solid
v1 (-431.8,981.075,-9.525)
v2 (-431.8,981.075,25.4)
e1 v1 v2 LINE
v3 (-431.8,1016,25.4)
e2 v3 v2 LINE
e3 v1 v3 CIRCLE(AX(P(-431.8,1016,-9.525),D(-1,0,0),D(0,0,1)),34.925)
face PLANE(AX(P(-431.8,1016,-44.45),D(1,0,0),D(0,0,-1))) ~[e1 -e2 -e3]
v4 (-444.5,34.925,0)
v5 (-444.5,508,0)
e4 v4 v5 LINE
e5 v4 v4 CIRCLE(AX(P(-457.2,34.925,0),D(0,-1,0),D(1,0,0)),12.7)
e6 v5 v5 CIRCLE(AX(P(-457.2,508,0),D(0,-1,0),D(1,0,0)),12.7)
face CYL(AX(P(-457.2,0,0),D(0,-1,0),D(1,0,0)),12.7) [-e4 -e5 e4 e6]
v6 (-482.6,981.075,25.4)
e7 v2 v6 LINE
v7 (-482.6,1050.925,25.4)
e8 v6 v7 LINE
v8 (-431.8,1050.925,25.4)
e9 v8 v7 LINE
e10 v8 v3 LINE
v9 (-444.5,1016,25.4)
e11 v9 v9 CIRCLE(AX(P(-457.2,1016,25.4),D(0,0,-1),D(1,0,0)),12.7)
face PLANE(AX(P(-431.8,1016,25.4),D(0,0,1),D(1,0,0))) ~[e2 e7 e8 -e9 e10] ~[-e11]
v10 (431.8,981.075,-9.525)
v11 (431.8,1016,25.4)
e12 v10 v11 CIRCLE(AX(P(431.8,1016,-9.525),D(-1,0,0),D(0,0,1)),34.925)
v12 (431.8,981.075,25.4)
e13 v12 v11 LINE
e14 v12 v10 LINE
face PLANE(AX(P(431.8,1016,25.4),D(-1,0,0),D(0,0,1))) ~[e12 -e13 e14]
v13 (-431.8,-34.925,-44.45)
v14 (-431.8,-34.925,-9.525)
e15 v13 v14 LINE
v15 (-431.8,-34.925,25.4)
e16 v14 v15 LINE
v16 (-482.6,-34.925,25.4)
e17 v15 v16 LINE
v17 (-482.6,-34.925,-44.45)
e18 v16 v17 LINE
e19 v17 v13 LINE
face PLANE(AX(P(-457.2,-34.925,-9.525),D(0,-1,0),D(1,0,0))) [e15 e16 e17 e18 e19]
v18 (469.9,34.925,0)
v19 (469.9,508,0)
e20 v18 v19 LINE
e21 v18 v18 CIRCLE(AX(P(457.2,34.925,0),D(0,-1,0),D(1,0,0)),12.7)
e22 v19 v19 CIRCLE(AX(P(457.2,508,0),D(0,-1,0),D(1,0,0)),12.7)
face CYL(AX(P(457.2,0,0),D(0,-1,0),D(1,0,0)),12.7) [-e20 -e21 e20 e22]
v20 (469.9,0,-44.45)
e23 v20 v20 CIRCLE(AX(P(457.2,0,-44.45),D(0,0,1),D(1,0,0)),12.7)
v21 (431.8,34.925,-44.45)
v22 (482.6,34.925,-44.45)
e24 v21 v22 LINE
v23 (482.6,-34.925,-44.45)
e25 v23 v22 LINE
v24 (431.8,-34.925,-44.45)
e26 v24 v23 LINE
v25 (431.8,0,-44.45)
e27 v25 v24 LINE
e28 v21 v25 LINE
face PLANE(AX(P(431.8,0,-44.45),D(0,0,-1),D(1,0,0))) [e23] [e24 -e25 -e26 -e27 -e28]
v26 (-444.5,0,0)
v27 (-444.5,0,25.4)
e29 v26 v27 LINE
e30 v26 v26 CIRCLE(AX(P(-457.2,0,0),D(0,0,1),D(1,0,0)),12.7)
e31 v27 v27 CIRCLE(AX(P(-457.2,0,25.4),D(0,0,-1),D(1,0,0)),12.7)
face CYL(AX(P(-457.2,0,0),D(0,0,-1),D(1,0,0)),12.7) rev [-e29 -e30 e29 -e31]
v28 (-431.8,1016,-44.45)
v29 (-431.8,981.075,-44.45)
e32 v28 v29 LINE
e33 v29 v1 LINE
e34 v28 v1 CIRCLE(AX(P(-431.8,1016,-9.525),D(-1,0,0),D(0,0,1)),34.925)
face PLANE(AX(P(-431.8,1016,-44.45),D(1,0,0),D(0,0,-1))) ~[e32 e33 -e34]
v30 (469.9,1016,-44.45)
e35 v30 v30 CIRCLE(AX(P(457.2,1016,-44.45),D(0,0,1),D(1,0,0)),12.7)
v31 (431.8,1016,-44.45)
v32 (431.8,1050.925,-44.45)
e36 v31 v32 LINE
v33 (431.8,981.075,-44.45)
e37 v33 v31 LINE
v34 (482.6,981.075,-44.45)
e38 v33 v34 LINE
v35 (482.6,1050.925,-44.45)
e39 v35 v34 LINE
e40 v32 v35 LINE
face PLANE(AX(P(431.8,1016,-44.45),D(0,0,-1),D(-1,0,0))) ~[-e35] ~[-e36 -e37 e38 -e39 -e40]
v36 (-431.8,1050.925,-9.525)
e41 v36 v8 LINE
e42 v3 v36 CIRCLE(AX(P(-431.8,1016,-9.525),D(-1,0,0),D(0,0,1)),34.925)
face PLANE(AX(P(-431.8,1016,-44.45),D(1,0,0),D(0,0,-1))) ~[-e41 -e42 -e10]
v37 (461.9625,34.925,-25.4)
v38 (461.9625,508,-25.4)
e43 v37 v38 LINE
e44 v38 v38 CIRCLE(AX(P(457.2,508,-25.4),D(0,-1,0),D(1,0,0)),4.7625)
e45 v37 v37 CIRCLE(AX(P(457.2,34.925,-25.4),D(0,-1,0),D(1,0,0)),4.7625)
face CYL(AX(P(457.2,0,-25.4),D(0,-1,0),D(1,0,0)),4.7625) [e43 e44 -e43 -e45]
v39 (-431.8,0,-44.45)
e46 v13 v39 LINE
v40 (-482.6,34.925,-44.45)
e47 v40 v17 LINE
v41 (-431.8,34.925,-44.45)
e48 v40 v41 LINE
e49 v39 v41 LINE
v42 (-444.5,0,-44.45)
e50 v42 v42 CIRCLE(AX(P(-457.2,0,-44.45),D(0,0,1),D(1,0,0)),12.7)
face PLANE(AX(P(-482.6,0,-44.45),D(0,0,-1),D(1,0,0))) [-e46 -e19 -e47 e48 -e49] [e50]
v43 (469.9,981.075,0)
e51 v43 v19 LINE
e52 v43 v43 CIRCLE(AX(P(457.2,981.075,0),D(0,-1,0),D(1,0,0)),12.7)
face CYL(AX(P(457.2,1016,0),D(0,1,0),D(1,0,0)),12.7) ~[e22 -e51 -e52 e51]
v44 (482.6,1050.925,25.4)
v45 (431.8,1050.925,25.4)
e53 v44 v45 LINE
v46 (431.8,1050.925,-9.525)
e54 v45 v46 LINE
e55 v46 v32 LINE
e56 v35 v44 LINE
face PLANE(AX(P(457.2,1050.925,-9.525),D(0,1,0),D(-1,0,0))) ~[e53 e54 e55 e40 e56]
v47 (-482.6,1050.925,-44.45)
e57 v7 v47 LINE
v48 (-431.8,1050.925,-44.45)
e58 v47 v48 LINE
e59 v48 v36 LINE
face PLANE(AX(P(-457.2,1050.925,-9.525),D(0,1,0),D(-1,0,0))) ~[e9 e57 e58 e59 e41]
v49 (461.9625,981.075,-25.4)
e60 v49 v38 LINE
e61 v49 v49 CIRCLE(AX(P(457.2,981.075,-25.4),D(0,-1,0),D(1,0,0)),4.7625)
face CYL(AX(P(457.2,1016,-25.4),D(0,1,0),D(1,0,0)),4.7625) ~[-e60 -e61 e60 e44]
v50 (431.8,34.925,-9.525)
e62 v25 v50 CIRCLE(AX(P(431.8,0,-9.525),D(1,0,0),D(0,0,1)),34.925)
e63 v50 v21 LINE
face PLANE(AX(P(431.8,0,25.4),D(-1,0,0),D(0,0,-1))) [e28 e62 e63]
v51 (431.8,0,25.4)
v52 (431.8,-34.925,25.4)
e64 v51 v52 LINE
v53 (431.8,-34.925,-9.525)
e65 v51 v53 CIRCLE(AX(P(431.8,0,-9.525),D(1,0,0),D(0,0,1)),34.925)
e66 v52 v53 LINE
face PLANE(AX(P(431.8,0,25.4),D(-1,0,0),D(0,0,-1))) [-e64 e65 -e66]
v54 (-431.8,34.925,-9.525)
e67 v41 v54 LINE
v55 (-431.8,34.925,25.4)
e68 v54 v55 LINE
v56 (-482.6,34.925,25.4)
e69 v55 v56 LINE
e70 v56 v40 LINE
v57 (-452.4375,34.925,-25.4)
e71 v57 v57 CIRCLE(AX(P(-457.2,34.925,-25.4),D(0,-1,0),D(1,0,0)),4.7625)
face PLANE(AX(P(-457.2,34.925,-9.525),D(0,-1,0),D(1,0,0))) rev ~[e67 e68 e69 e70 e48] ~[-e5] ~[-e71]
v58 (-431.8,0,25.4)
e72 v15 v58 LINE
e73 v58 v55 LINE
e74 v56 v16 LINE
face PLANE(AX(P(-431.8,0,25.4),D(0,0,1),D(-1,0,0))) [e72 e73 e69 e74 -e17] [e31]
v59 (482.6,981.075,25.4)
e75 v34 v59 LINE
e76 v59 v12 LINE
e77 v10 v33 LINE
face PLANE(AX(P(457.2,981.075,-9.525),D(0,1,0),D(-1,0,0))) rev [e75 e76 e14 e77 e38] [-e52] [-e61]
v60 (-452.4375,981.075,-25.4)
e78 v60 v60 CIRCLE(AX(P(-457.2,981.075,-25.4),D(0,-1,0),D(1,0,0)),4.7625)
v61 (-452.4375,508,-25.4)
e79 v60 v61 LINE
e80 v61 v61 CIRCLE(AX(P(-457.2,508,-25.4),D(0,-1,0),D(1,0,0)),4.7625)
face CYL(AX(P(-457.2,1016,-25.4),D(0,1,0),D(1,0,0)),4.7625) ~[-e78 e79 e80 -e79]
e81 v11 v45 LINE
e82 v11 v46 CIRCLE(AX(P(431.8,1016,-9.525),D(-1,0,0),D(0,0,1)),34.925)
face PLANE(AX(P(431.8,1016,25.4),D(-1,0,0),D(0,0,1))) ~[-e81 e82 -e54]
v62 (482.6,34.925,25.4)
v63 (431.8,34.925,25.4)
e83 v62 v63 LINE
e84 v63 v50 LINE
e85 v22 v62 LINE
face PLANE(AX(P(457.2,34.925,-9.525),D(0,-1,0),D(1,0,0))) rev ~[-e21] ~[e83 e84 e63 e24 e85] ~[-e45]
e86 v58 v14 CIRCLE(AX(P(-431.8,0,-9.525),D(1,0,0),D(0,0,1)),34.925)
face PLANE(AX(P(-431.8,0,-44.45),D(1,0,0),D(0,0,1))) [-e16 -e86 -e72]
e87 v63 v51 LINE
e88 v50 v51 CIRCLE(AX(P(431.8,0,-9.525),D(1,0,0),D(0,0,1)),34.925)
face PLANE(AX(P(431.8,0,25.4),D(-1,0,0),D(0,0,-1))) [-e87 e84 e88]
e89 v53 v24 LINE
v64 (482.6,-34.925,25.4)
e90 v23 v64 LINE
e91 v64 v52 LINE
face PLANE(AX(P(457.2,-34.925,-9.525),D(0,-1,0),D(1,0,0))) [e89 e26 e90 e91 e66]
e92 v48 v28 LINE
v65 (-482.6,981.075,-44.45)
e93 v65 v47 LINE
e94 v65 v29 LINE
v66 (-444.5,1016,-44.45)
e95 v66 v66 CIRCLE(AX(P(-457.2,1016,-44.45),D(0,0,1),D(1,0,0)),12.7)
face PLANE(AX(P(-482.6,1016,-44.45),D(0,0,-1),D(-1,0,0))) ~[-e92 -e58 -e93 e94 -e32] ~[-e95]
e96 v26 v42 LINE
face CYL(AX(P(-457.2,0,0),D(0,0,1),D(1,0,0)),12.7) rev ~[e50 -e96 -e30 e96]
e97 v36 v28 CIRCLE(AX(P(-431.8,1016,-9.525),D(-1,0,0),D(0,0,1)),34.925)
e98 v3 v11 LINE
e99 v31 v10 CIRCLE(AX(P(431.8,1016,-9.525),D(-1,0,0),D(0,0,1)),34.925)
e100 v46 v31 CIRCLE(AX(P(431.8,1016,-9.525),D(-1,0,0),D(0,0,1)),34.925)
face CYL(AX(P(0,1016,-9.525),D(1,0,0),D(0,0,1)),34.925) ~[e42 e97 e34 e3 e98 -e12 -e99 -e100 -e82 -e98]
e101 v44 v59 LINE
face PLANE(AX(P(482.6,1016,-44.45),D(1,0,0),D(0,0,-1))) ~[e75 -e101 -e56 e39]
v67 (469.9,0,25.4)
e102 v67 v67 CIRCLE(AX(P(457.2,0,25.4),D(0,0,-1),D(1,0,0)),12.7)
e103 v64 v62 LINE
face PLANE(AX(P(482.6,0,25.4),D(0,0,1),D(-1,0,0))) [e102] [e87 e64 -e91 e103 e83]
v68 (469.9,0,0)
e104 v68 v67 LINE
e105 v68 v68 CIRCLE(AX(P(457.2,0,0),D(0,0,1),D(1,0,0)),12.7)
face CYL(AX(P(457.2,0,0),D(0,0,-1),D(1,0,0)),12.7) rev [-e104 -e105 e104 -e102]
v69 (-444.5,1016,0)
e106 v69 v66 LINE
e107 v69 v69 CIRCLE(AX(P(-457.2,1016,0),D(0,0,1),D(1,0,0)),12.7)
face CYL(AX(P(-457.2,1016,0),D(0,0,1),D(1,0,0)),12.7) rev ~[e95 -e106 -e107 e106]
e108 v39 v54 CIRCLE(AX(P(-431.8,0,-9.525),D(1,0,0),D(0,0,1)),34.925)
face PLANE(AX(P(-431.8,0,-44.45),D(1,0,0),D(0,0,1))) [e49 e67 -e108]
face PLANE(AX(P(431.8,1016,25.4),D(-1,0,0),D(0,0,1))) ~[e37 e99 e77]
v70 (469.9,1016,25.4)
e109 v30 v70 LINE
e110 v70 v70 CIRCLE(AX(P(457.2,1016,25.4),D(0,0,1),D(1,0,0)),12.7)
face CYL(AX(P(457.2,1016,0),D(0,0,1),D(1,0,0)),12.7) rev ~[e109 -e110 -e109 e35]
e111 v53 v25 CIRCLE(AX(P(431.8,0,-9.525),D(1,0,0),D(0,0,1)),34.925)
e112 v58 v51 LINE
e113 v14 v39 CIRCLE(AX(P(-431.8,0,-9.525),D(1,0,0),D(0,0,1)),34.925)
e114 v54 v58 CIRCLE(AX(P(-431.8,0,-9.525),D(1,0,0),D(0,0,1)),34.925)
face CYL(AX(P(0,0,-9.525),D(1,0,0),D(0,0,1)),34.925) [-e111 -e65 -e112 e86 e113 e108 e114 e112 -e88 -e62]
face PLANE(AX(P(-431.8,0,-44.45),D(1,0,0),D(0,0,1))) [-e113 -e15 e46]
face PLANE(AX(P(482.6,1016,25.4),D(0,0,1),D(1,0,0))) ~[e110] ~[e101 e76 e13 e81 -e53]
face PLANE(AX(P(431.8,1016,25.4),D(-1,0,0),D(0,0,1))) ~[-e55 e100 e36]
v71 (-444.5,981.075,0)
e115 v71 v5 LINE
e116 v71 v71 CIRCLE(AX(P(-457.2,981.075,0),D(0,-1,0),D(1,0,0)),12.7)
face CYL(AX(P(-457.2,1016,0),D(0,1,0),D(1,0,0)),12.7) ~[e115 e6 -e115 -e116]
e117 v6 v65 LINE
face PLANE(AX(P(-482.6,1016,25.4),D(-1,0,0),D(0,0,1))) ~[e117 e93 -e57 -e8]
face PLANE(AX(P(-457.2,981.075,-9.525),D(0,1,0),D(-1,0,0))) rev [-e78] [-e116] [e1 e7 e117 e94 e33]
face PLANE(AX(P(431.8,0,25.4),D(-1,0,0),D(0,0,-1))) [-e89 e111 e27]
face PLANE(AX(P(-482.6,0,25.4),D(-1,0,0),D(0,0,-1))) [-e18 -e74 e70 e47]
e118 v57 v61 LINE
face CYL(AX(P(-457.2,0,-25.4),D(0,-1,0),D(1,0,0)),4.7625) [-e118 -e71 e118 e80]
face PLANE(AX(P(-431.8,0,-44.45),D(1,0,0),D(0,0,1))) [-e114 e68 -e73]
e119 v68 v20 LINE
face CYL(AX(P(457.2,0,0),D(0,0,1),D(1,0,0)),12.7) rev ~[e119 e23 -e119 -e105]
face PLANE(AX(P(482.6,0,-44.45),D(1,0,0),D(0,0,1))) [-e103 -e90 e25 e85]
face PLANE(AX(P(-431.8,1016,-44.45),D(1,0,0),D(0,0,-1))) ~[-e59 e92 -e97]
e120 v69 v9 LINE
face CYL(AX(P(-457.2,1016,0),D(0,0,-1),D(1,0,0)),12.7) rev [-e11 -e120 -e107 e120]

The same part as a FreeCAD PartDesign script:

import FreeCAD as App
import Part
import Sketcher
from FreeCAD import Vector
Q = App.Units.Quantity

doc = App.newDocument("Part")
body = doc.addObject("PartDesign::Body", "Body")

# Sketch on XZ plane
sketch1 = body.newObject("Sketcher::SketchObject", "Sketch")
sketch1.AttachmentSupport = (doc.getObject("XZ_Plane"), [""])
sketch1.MapMode = "FlatFace"
sketch1.addGeometry(Part.LineSegment(Vector(483, 25, 0), Vector(432, 25, 0)), False)
sketch1.addGeometry(Part.LineSegment(Vector(432, 25, 0), Vector(432, -44, 0)), False)
sketch1.addGeometry(Part.LineSegment(Vector(432, -44, 0), Vector(483, -44, 0)), False)
sketch1.addGeometry(Part.LineSegment(Vector(483, -44, 0), Vector(483, 25, 0)), False)
sketch1.addConstraint(Sketcher.Constraint("Coincident", 0, 2, 1, 1))
sketch1.addConstraint(Sketcher.Constraint("Coincident", 1, 2, 2, 1))
sketch1.addConstraint(Sketcher.Constraint("Coincident", 2, 2, 3, 1))
sketch1.addConstraint(Sketcher.Constraint("Coincident", 3, 2, 0, 1))
sketch1.addConstraint(Sketcher.Constraint("Horizontal", 0))
sketch1.addConstraint(Sketcher.Constraint("Vertical", 1))
sketch1.addConstraint(Sketcher.Constraint("Horizontal", 2))
sketch1.addConstraint(Sketcher.Constraint("Vertical", 3))
sketch1.addConstraint(Sketcher.Constraint("DistanceX", 0, 2, 0, 1, Q("2 in")))
sketch1.addConstraint(Sketcher.Constraint("DistanceX", -1, 1, 0, 2, Q("17 in")))
sketch1.addConstraint(Sketcher.Constraint("DistanceY", -1, 1, 0, 2, Q("1 in")))
sketch1.addConstraint(Sketcher.Constraint("DistanceY", 1, 2, 1, 1, Q("2.75 in")))
pad1 = body.newObject("PartDesign::Pad", "Pad")
pad1.Profile = sketch1
pad1.Length = Q("2.75 in")
pad1.Midplane = True
body2 = doc.addObject("PartDesign::Body", "Body001")

# Sketch on XZ plane
sketch2 = body2.newObject("Sketcher::SketchObject", "Sketch001")
sketch2.AttachmentSupport = (doc.getObject("XZ_Plane001"), [""])
sketch2.MapMode = "FlatFace"
sketch2.addGeometry(Part.LineSegment(Vector(-432, 25, 0), Vector(-483, 25, 0)), False)
sketch2.addGeometry(Part.LineSegment(Vector(-483, 25, 0), Vector(-483, -44, 0)), False)
sketch2.addGeometry(Part.LineSegment(Vector(-483, -44, 0), Vector(-432, -44, 0)), False)
sketch2.addGeometry(Part.LineSegment(Vector(-432, -44, 0), Vector(-432, 25, 0)), False)
sketch2.addConstraint(Sketcher.Constraint("Coincident", 0, 2, 1, 1))
sketch2.addConstraint(Sketcher.Constraint("Coincident", 1, 2, 2, 1))
sketch2.addConstraint(Sketcher.Constraint("Coincident", 2, 2, 3, 1))
sketch2.addConstraint(Sketcher.Constraint("Coincident", 3, 2, 0, 1))
sketch2.addConstraint(Sketcher.Constraint("Horizontal", 0))
sketch2.addConstraint(Sketcher.Constraint("Vertical", 1))
sketch2.addConstraint(Sketcher.Constraint("Horizontal", 2))
sketch2.addConstraint(Sketcher.Constraint("Vertical", 3))
sketch2.addConstraint(Sketcher.Constraint("DistanceX", 0, 2, 0, 1, Q("2 in")))
sketch2.addConstraint(Sketcher.Constraint("DistanceX", 0, 2, -1, 1, Q("19 in")))
sketch2.addConstraint(Sketcher.Constraint("DistanceY", -1, 1, 0, 2, Q("1 in")))
sketch2.addConstraint(Sketcher.Constraint("DistanceY", 1, 2, 1, 1, Q("2.75 in")))
pad2 = body2.newObject("PartDesign::Pad", "Pad001")
pad2.Profile = sketch2
pad2.Length = Q("2.75 in")
pad2.Midplane = True
body.AllowCompound = True
doc.recompute()

boolean = body.newObject("PartDesign::Boolean", "Boolean")
boolean.Type = "Fuse"
boolean.addObjects([body2])

# Sketch on XZ plane
sketch3 = body.newObject("Sketcher::SketchObject", "Sketch002")
sketch3.AttachmentSupport = (doc.getObject("XZ_Plane"), [""])
sketch3.MapMode = "FlatFace"
sketch3.addGeometry(Part.LineSegment(Vector(-432, 25, 0), Vector(-432, -10, 0)), False)
sketch3.addGeometry(Part.LineSegment(Vector(-432, -10, 0), Vector(432, -10, 0)), False)
sketch3.addGeometry(Part.LineSegment(Vector(432, -10, 0), Vector(432, 25, 0)), False)
sketch3.addGeometry(Part.LineSegment(Vector(432, 25, 0), Vector(-432, 25, 0)), False)
sketch3.addGeometry(Part.LineSegment(Vector(-432, -10, 0), Vector(432, -10, 0)), True)  # axis
sketch3.addConstraint(Sketcher.Constraint("Coincident", 0, 2, 1, 1))
sketch3.addConstraint(Sketcher.Constraint("Coincident", 1, 2, 2, 1))
sketch3.addConstraint(Sketcher.Constraint("Coincident", 2, 2, 3, 1))
sketch3.addConstraint(Sketcher.Constraint("Coincident", 3, 2, 0, 1))
sketch3.addConstraint(Sketcher.Constraint("Vertical", 0))
sketch3.addConstraint(Sketcher.Constraint("Horizontal", 1))
sketch3.addConstraint(Sketcher.Constraint("Vertical", 2))
sketch3.addConstraint(Sketcher.Constraint("Horizontal", 3))
sketch3.addConstraint(Sketcher.Constraint("Horizontal", 4))
sketch3.addConstraint(Sketcher.Constraint("Coincident", 4, 1, 0, 2))
sketch3.addConstraint(Sketcher.Constraint("Vertical", 2, 2, 4, 2))
sketch3.addConstraint(Sketcher.Constraint("DistanceX", 1, 1, 1, 2, Q("34 in")))
sketch3.addConstraint(Sketcher.Constraint("DistanceX", 0, 2, -1, 1, Q("17 in")))
sketch3.addConstraint(Sketcher.Constraint("DistanceY", -1, 1, 2, 2, Q("1 in")))
sketch3.addConstraint(Sketcher.Constraint("DistanceY", 0, 2, 0, 1, Q("1.375 in")))
revolution = body.newObject("PartDesign::Revolution", "Revolution")
revolution.Profile = sketch3
revolution.ReferenceAxis = (sketch3, ["Axis0"])
revolution.Angle = 360

# Sketch on XZ plane
sketch4 = body.newObject("Sketcher::SketchObject", "Sketch003")
sketch4.AttachmentSupport = (doc.getObject("XZ_Plane"), [""])
sketch4.MapMode = "FlatFace"
sketch4.addGeometry(Part.Circle(Vector(457.2, 0, 0), Vector(0, 0, 1), 12.7), False)
sketch4.addGeometry(Part.Circle(Vector(457.2, -25.4, 0), Vector(0, 0, 1), 4.8), False)
sketch4.addGeometry(Part.Circle(Vector(-457.2, 0, 0), Vector(0, 0, 1), 12.7), False)
sketch4.addGeometry(Part.Circle(Vector(-457.2, -25.4, 0), Vector(0, 0, 1), 4.8), False)
sketch4.addConstraint(Sketcher.Constraint("Equal", 0, 2))
sketch4.addConstraint(Sketcher.Constraint("Equal", 1, 3))
sketch4.addConstraint(Sketcher.Constraint("Symmetric", 0, 3, 2, 3, -1, 1))
sketch4.addConstraint(Sketcher.Constraint("Symmetric", 1, 3, 3, 3, -2))
sketch4.addConstraint(Sketcher.Constraint("PointOnObject", 0, 3, -1))
sketch4.addConstraint(Sketcher.Constraint("Vertical", 0, 3, 1, 3))
sketch4.addConstraint(Sketcher.Constraint("Diameter", 0, Q("1 in")))
sketch4.addConstraint(Sketcher.Constraint("Diameter", 1, Q("0.375 in")))
sketch4.addConstraint(Sketcher.Constraint("DistanceX", -1, 1, 0, 3, Q("18 in")))
sketch4.addConstraint(Sketcher.Constraint("DistanceY", 1, 3, -1, 1, Q("1 in")))
pad3 = body.newObject("PartDesign::Pad", "Pad002")
pad3.Profile = sketch4
pad3.Length = Q("20 in")
pad3.Reversed = True
body3 = doc.addObject("PartDesign::Body", "Body002")
doc.recompute()

body3.BaseFeature = body
doc.recompute()

mirroring = doc.addObject("Part::Mirroring", "Mirroring")
mirroring.Source = body
mirroring.Base = Vector(0, 508, 0)
mirroring.Normal = Vector(0, -1, 0)
body4 = doc.addObject("PartDesign::Body", "Body003")
body4.BaseFeature = mirroring
boolean2 = body3.newObject("PartDesign::Boolean", "Boolean001")
boolean2.Type = "Fuse"
boolean2.addObjects([body4])
doc.recompute()

# Sketch on XY plane
sketch5 = body3.newObject("Sketcher::SketchObject", "Sketch004")
sketch5.AttachmentSupport = (doc.getObject("XY_Plane002"), [""])
sketch5.MapMode = "FlatFace"
sketch5.addGeometry(Part.Circle(Vector(-457, 0, 0), Vector(0, 0, 1), 13), False)
sketch5.addGeometry(Part.Circle(Vector(-457, 1016, 0), Vector(0, 0, 1), 13), False)
sketch5.addGeometry(Part.Circle(Vector(457, 0, 0), Vector(0, 0, 1), 13), False)
sketch5.addGeometry(Part.Circle(Vector(457, 1016, 0), Vector(0, 0, 1), 13), False)
sketch5.addConstraint(Sketcher.Constraint("Equal", 0, 1))
sketch5.addConstraint(Sketcher.Constraint("Equal", 1, 2))
sketch5.addConstraint(Sketcher.Constraint("Equal", 2, 3))
sketch5.addConstraint(Sketcher.Constraint("Symmetric", 0, 3, 2, 3, -1, 1))
sketch5.addConstraint(Sketcher.Constraint("Symmetric", 1, 3, 3, 3, -2))
sketch5.addConstraint(Sketcher.Constraint("PointOnObject", 0, 3, -1))
sketch5.addConstraint(Sketcher.Constraint("Vertical", 0, 3, 1, 3))
sketch5.addConstraint(Sketcher.Constraint("Diameter", 0, Q("1 in")))
sketch5.addConstraint(Sketcher.Constraint("DistanceX", 0, 3, -1, 1, Q("18 in")))
sketch5.addConstraint(Sketcher.Constraint("DistanceY", -1, 1, 1, 3, Q("40 in")))
pocket1 = body3.newObject("PartDesign::Pocket", "Pocket")
pocket1.Profile = sketch5
pocket1.Length = Q("5 in")
pocket1.Midplane = True
mirroring.Visibility = False

doc.recompute()
